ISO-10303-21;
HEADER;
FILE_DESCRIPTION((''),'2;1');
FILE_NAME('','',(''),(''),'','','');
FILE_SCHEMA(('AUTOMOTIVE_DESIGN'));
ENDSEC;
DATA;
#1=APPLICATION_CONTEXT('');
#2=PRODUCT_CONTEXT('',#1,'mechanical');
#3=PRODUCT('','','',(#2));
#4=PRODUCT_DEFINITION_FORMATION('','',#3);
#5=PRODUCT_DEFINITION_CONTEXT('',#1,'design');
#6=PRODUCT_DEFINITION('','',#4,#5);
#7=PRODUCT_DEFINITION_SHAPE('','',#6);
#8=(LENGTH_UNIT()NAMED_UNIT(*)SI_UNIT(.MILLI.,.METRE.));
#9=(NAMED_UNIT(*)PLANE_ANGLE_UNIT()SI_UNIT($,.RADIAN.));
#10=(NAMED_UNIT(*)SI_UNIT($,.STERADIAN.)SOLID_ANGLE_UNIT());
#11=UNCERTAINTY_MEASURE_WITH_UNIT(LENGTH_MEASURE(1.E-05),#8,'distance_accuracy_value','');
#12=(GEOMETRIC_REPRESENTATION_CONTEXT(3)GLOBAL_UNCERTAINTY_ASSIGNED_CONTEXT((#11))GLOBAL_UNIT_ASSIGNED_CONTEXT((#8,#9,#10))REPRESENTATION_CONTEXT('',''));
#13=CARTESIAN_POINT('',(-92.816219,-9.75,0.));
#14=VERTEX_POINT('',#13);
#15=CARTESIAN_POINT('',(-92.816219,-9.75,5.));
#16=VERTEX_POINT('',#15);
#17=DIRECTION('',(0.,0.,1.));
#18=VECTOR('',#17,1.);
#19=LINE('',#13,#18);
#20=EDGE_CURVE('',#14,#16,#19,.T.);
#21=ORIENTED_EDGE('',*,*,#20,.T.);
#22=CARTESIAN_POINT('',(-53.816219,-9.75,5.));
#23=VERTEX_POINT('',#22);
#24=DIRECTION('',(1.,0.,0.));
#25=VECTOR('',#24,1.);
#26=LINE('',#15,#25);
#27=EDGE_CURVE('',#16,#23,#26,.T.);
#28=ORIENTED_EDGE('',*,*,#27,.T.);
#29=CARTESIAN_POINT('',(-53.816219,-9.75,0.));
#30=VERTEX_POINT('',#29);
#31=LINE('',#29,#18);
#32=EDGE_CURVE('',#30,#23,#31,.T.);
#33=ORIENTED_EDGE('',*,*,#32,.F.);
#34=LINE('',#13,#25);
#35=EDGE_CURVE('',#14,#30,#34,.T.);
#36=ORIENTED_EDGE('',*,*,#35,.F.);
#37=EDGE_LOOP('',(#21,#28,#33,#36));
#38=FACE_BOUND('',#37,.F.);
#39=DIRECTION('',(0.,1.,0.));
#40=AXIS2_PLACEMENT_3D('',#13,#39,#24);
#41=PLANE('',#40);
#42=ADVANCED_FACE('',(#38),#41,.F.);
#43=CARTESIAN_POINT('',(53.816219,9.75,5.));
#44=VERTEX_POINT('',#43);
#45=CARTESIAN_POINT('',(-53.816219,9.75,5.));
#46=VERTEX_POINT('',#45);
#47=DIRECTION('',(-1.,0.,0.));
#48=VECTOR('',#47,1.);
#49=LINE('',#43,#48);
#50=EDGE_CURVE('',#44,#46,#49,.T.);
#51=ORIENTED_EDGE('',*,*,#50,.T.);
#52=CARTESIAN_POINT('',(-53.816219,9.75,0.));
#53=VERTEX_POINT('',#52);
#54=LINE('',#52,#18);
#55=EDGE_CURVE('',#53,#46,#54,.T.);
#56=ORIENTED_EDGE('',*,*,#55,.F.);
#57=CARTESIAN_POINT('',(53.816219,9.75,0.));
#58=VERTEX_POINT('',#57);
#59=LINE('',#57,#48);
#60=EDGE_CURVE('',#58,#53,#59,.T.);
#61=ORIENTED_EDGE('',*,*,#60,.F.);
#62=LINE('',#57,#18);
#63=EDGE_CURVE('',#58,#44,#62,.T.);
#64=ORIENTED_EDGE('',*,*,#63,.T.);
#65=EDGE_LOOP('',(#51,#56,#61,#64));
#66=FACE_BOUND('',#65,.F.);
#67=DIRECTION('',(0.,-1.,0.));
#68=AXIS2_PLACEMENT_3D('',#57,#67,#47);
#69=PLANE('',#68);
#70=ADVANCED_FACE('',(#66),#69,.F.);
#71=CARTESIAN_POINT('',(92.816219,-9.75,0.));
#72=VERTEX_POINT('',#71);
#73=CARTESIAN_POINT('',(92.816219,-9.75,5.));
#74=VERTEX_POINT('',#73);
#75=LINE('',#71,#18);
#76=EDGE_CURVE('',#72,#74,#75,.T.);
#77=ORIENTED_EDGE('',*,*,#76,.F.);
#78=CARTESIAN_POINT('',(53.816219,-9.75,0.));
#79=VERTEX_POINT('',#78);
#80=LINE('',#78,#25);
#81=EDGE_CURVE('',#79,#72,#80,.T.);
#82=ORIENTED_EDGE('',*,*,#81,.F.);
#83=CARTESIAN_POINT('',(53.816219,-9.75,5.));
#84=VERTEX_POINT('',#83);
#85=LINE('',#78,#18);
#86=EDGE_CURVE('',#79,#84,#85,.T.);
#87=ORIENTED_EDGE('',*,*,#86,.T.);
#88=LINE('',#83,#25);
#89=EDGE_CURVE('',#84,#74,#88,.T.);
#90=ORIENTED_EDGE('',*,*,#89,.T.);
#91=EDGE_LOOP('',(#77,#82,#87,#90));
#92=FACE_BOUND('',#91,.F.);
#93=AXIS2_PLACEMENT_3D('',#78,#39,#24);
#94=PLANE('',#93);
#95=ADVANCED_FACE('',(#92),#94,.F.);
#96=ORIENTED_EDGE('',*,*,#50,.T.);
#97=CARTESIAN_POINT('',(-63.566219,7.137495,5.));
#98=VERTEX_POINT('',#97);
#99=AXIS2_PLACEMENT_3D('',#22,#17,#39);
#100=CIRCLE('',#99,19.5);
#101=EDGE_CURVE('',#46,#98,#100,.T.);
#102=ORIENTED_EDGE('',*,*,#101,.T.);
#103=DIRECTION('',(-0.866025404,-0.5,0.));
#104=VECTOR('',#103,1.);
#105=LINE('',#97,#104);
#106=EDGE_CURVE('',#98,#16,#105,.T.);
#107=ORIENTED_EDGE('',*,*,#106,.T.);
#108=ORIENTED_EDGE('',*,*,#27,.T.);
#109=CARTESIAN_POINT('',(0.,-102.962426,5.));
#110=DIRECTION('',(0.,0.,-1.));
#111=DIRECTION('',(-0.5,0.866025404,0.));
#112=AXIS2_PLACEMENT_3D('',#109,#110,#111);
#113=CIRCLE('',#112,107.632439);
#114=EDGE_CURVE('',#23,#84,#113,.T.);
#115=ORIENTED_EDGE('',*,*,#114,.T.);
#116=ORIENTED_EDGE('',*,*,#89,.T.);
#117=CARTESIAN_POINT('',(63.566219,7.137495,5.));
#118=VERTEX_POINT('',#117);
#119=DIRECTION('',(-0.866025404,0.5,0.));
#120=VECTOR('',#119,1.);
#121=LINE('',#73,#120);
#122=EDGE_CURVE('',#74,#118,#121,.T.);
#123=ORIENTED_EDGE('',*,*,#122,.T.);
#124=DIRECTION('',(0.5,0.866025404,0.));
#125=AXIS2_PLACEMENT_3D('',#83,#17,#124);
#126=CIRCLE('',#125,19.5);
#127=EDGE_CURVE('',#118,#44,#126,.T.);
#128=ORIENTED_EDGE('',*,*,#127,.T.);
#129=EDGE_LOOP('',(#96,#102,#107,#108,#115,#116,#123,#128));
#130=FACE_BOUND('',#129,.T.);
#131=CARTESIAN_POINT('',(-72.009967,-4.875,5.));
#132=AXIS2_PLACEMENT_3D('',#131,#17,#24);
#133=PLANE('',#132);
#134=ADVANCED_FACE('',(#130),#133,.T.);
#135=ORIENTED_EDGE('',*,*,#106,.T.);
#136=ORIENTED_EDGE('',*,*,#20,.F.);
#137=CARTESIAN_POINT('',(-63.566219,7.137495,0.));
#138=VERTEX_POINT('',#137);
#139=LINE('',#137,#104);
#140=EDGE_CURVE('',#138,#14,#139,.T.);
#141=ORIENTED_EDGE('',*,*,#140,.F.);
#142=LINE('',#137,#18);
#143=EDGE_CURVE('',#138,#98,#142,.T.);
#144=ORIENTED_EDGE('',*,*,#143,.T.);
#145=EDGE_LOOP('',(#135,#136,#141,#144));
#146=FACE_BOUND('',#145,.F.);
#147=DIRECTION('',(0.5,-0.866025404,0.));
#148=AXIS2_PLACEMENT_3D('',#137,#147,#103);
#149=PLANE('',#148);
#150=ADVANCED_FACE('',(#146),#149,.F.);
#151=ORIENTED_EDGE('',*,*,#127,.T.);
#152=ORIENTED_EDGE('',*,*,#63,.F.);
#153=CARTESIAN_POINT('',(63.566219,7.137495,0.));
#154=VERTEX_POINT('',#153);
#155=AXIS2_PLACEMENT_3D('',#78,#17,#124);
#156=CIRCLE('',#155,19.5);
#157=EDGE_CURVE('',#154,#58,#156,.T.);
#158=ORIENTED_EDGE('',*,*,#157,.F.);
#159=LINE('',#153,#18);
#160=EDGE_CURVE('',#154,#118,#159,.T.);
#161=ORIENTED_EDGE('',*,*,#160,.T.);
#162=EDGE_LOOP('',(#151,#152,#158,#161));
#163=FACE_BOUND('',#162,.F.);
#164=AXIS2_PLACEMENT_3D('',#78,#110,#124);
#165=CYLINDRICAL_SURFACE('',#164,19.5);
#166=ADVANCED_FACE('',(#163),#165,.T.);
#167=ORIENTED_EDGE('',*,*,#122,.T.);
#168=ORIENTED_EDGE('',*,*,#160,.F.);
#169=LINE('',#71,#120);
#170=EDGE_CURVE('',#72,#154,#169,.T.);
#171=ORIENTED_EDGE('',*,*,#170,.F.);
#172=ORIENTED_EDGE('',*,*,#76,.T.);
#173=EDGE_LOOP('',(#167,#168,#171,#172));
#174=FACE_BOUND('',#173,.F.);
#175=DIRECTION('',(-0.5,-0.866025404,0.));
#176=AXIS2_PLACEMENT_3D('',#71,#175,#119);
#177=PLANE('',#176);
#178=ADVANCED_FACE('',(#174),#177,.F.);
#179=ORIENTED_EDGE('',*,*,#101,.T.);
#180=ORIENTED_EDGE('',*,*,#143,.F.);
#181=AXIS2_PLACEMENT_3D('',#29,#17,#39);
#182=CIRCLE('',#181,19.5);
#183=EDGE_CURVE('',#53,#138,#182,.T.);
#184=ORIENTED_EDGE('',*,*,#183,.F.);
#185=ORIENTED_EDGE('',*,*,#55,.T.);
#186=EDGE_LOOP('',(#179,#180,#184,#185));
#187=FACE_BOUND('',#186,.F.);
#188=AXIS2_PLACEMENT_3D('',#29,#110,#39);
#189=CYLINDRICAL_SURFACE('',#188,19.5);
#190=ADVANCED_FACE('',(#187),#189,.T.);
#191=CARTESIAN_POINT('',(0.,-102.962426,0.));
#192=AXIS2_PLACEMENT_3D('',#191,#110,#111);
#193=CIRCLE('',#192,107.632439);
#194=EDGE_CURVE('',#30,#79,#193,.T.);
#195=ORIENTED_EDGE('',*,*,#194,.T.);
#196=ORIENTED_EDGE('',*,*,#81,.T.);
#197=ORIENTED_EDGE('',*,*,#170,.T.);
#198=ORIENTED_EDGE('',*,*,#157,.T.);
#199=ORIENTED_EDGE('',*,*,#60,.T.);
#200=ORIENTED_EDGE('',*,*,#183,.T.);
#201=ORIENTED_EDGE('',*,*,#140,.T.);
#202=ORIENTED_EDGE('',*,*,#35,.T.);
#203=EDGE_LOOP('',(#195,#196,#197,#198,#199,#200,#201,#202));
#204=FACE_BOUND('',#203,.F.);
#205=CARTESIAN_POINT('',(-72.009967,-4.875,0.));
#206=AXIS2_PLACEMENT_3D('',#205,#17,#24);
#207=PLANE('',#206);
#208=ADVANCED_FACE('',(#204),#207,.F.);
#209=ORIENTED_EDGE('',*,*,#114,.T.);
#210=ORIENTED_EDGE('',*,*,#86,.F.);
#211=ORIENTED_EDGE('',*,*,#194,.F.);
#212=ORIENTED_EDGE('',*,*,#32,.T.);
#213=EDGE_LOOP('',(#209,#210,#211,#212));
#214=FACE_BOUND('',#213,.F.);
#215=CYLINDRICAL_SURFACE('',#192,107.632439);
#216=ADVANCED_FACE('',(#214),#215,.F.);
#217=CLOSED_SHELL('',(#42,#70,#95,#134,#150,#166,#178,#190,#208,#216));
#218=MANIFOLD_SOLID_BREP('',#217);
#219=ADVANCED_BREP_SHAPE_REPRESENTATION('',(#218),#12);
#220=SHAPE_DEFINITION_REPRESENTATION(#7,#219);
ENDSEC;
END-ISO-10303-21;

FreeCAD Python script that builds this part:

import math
import FreeCAD as App
import Part
import Sketcher

doc = App.newDocument("Part")
body = doc.addObject("PartDesign::Body", "Body")

# Sketch on XY plane
sketch1 = body.newObject("Sketcher::SketchObject", "Sketch")
sketch1.AttachmentSupport = (doc.getObject("XY_Plane"), [""])
sketch1.MapMode = "FlatFace"
sketch1.addGeometry([
    Part.LineSegment(App.Vector(-92.816219, -9.75, 0), App.Vector(-53.816219, -9.75, 0)),  # 0
    Part.ArcOfCircle(Part.Circle(App.Vector(0, -102.962426, 0), App.Vector(0, 0, 1), 107.632439), math.radians(60), math.radians(120)),  # 1
    Part.LineSegment(App.Vector(53.816219, -9.75, 0), App.Vector(92.816219, -9.75, 0)),  # 2
    Part.LineSegment(App.Vector(92.816219, -9.75, 0), App.Vector(63.566219, 7.137495, 0)),  # 3
    Part.ArcOfCircle(Part.Circle(App.Vector(53.816219, -9.75, 0), App.Vector(0, 0, 1), 19.5), math.radians(60), math.radians(90)),  # 4
    Part.LineSegment(App.Vector(53.816219, 9.75, 0), App.Vector(-53.816219, 9.75, 0)),  # 5
    Part.ArcOfCircle(Part.Circle(App.Vector(-53.816219, -9.75, 0), App.Vector(0, 0, 1), 19.5), math.radians(90), math.radians(120)),  # 6
    Part.LineSegment(App.Vector(-63.566219, 7.137495, 0), App.Vector(-92.816219, -9.75, 0)),  # 7
], False)
sketch1.addConstraint([
    Sketcher.Constraint("Coincident", 0, 2, 1, 2),
    Sketcher.Constraint("Coincident", 1, 1, 2, 1),
    Sketcher.Constraint("Coincident", 2, 2, 3, 1),
    Sketcher.Constraint("Tangent", 3, 2, 4, 1),
    Sketcher.Constraint("Tangent", 4, 2, 5, 1),
    Sketcher.Constraint("Tangent", 5, 2, 6, 1),
    Sketcher.Constraint("Tangent", 6, 2, 7, 1),
    Sketcher.Constraint("Coincident", 7, 2, 0, 1),
    Sketcher.Constraint("Horizontal", 0),
    Sketcher.Constraint("Horizontal", 2),
    Sketcher.Constraint("Horizontal", 5),
    Sketcher.Constraint("Coincident", 0, 2, 6, 3),
    Sketcher.Constraint("Coincident", 1, 1, 4, 3),
    Sketcher.Constraint("Equal", 4, 6),
    Sketcher.Constraint("Symmetric", 0, 2, 4, 2, -1, 1),
    Sketcher.Constraint("Horizontal", 3, 2, 6, 2),
    Sketcher.Constraint("Radius", 4, 19.5),
    Sketcher.Constraint("DistanceX", 0, 1, 0, 2, 39.0),
    Sketcher.Constraint("Radius", 1, 107.632439),
    Sketcher.Constraint("DistanceX", 5, 2, 5, 1, 107.632439),
])
pad1 = body.newObject("PartDesign::Pad", "Pad")
pad1.Profile = sketch1
pad1.Length = 5

doc.recompute()
